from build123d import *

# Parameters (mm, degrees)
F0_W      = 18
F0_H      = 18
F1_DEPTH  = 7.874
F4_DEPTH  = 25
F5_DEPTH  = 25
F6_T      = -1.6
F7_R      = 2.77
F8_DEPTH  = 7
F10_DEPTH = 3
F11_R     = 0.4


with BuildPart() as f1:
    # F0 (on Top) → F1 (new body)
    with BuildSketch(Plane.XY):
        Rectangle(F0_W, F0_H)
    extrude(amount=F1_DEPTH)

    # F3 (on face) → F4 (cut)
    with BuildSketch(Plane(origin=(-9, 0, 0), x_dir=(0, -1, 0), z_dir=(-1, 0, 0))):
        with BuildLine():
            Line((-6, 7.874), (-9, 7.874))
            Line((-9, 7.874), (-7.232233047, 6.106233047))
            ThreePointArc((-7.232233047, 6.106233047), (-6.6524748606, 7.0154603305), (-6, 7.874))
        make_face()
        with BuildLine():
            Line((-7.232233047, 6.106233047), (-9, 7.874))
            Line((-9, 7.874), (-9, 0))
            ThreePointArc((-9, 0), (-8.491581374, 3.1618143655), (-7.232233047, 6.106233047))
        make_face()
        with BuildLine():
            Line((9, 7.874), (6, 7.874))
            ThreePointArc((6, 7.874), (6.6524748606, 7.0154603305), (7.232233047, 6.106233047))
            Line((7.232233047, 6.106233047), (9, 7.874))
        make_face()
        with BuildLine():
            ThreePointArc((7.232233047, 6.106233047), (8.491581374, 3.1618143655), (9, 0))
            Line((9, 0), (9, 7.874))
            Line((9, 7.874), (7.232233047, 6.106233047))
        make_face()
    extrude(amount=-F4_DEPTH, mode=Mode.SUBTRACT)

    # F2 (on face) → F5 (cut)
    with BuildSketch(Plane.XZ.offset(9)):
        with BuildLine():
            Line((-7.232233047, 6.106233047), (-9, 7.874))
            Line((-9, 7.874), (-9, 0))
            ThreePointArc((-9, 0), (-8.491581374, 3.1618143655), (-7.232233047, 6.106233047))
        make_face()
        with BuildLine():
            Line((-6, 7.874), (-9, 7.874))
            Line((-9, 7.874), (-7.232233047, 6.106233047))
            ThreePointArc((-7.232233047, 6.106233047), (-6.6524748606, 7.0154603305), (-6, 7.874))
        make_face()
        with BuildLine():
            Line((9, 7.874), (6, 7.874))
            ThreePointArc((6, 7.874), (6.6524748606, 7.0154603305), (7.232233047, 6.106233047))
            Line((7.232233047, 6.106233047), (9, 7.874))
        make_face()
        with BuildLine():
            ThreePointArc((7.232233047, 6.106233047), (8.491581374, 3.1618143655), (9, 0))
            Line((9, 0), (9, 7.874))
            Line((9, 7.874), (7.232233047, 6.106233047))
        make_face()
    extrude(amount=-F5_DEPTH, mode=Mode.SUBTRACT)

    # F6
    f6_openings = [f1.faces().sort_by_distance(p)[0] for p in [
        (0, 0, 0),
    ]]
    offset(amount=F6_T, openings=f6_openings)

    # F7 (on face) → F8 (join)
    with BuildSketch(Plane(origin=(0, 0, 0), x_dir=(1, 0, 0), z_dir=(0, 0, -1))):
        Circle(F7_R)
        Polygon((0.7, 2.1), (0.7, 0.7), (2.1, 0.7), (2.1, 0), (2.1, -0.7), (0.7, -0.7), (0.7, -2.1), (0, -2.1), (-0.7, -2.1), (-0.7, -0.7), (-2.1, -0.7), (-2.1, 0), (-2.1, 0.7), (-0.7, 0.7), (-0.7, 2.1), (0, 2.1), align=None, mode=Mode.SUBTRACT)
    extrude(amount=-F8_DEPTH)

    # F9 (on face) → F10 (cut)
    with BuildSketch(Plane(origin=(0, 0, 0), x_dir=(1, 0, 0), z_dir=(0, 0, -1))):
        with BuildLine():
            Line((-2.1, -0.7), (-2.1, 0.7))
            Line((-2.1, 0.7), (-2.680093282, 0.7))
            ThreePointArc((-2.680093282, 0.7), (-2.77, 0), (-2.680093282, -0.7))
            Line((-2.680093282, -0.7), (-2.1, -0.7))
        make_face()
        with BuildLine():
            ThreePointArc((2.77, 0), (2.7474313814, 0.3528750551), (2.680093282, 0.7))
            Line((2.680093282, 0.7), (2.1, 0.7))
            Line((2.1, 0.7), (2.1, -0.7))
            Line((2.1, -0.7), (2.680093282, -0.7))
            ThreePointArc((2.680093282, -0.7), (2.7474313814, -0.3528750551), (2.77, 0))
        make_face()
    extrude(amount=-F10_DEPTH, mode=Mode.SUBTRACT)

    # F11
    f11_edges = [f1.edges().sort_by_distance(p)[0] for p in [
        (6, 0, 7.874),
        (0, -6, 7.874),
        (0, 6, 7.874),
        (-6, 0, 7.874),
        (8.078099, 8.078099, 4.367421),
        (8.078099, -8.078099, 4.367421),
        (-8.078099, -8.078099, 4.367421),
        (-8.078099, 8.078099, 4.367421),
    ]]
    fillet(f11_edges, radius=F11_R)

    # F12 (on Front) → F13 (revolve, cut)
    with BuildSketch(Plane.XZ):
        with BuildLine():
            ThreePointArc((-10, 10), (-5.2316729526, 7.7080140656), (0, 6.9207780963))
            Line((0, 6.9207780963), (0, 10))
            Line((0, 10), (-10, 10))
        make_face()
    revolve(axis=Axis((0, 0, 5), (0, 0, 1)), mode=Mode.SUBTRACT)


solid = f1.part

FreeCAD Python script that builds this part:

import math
import FreeCAD as App
import Part
import Sketcher


def edges_at(feature, points):
    """Names of the edges that pass closest to the given points."""
    edges = feature.Shape.Edges
    near = lambda p: min(range(len(edges)), key=lambda i: edges[i].distToShape(Part.Vertex(*p))[0])
    return sorted({f"Edge{near(p) + 1}" for p in points})


def faces_at(feature, points):
    """Names of the faces that lie closest to the given points."""
    faces = feature.Shape.Faces
    near = lambda p: min(range(len(faces)), key=lambda i: faces[i].distToShape(Part.Vertex(*p))[0])
    return sorted({f"Face{near(p) + 1}" for p in points})

doc = App.newDocument("Part")
body = doc.addObject("PartDesign::Body", "Body")

sketch1 = doc.addObject("Sketcher::SketchObject", "Sketch")
body.addObject(sketch1)
sketch1.AttachmentSupport = (doc.XY_Plane, [""])
sketch1.MapMode = "FlatFace"
sketch1.addGeometry(Part.LineSegment(App.Vector(-9, 9, 0), App.Vector(-9, -9, 0)), False)
sketch1.addGeometry(Part.LineSegment(App.Vector(-9, -9, 0), App.Vector(9, -9, 0)), False)
sketch1.addGeometry(Part.LineSegment(App.Vector(9, -9, 0), App.Vector(9, 9, 0)), False)
sketch1.addGeometry(Part.LineSegment(App.Vector(9, 9, 0), App.Vector(-9, 9, 0)), False)
sketch1.addConstraint(Sketcher.Constraint("Coincident", 0, 2, 1, 1))
sketch1.addConstraint(Sketcher.Constraint("Coincident", 1, 2, 2, 1))
sketch1.addConstraint(Sketcher.Constraint("Coincident", 2, 2, 3, 1))
sketch1.addConstraint(Sketcher.Constraint("Coincident", 3, 2, 0, 1))
sketch1.addConstraint(Sketcher.Constraint("Vertical", 0))
sketch1.addConstraint(Sketcher.Constraint("Horizontal", 1))
sketch1.addConstraint(Sketcher.Constraint("Vertical", 2))
sketch1.addConstraint(Sketcher.Constraint("Horizontal", 3))
sketch1.addConstraint(Sketcher.Constraint("Symmetric", 0, 2, 2, 2, -1, 1))
sketch1.addConstraint(Sketcher.Constraint("Equal", 3, 0))
sketch1.addConstraint(Sketcher.Constraint("DistanceX", 1, 1, 1, 2, 18.0))
pad1 = doc.addObject("PartDesign::Pad", "Pad")
body.addObject(pad1)
pad1.Profile = sketch1
pad1.Length = 7.874

sketch2 = doc.addObject("Sketcher::SketchObject", "Sketch001")
body.addObject(sketch2)
sketch2.AttachmentSupport = (doc.YZ_Plane, [""])
sketch2.MapMode = "FlatFace"
sketch2.AttachmentOffset = App.Placement(App.Vector(0, 0, -9), App.Rotation())
sketch2.addGeometry(Part.LineSegment(App.Vector(6, 7.9, 0), App.Vector(9, 7.9, 0)), False)
sketch2.addGeometry(Part.LineSegment(App.Vector(9, 7.9, 0), App.Vector(9, 0, 0)), False)
sketch2.addGeometry(Part.ArcOfCircle(Part.Circle(App.Vector(-4.1, -0.5, 0), App.Vector(0, 0, 1), 13.1), math.radians(2), math.radians(30)), False)
sketch2.addGeometry(Part.ArcOfCircle(Part.Circle(App.Vector(-4.1, -0.5, 0), App.Vector(0, 0, 1), 13.1), math.radians(30.17), math.radians(39.59)), False)
sketch2.addGeometry(Part.LineSegment(App.Vector(-9, 7.9, 0), App.Vector(-6, 7.9, 0)), False)
sketch2.addGeometry(Part.ArcOfCircle(Part.Circle(App.Vector(4.1, -0.5, 0), App.Vector(0, 0, 1), 13.1), math.radians(140.41), math.radians(149.83)), False)
sketch2.addGeometry(Part.ArcOfCircle(Part.Circle(App.Vector(4.1, -0.5, 0), App.Vector(0, 0, 1), 13.1), math.radians(150), math.radians(178)), False)
sketch2.addGeometry(Part.LineSegment(App.Vector(-9, 0, 0), App.Vector(-9, 7.9, 0)), False)
sketch2.addConstraint(Sketcher.Constraint("Coincident", 0, 2, 1, 1))
sketch2.addConstraint(Sketcher.Constraint("Coincident", 1, 2, 2, 1))
sketch2.addConstraint(Sketcher.Constraint("Tangent", 2, 2, 3, 1))
sketch2.addConstraint(Sketcher.Constraint("Coincident", 3, 2, 0, 1))
sketch2.addConstraint(Sketcher.Constraint("Coincident", 4, 2, 5, 1))
sketch2.addConstraint(Sketcher.Constraint("Tangent", 5, 2, 6, 1))
sketch2.addConstraint(Sketcher.Constraint("Coincident", 6, 2, 7, 1))
sketch2.addConstraint(Sketcher.Constraint("Coincident", 7, 2, 4, 1))
sketch2.addConstraint(Sketcher.Constraint("Horizontal", 0))
sketch2.addConstraint(Sketcher.Constraint("Vertical", 1))
sketch2.addConstraint(Sketcher.Constraint("Horizontal", 4))
sketch2.addConstraint(Sketcher.Constraint("Vertical", 7))
sketch2.addConstraint(Sketcher.Constraint("Equal", 2, 3))
sketch2.addConstraint(Sketcher.Constraint("Equal", 3, 5))
sketch2.addConstraint(Sketcher.Constraint("Equal", 5, 6))
sketch2.addConstraint(Sketcher.Constraint("Symmetric", 1, 2, 6, 2, -1, 1))
sketch2.addConstraint(Sketcher.Constraint("Symmetric", 2, 3, 5, 3, -2))
sketch2.addConstraint(Sketcher.Constraint("Horizontal", 3, 2, 4, 2))
sketch2.addConstraint(Sketcher.Constraint("Horizontal", 2, 2, 5, 2))
sketch2.addConstraint(Sketcher.Constraint("DistanceX", 0, 1, 0, 2, 3.0))
sketch2.addConstraint(Sketcher.Constraint("DistanceX", -1, 1, 0, 2, 9.0))
sketch2.addConstraint(Sketcher.Constraint("DistanceY", 1, 2, 1, 1, 7.874))
sketch2.addConstraint(Sketcher.Constraint("Radius", 2, 13.118471))
sketch2.addConstraint(Sketcher.Constraint("DistanceX", 3, 3, 2, 2, 11.341691))
pocket1 = doc.addObject("PartDesign::Pocket", "Pocket")
body.addObject(pocket1)
pocket1.Profile = sketch2
pocket1.Length = 25
pocket1.Reversed = True

sketch3 = doc.addObject("Sketcher::SketchObject", "Sketch002")
body.addObject(sketch3)
sketch3.AttachmentSupport = (doc.XZ_Plane, [""])
sketch3.MapMode = "FlatFace"
sketch3.AttachmentOffset = App.Placement(App.Vector(0, 0, 9), App.Rotation())
sketch3.addGeometry(Part.LineSegment(App.Vector(-9, 7.9, 0), App.Vector(-9, 0, 0)), False)
sketch3.addGeometry(Part.ArcOfCircle(Part.Circle(App.Vector(4.1, -0.5, 0), App.Vector(0, 0, 1), 13.1), math.radians(150), math.radians(178)), False)
sketch3.addGeometry(Part.ArcOfCircle(Part.Circle(App.Vector(4.1, -0.5, 0), App.Vector(0, 0, 1), 13.1), math.radians(140.41), math.radians(149.83)), False)
sketch3.addGeometry(Part.LineSegment(App.Vector(-6, 7.9, 0), App.Vector(-9, 7.9, 0)), False)
sketch3.addGeometry(Part.LineSegment(App.Vector(9, 7.9, 0), App.Vector(6, 7.9, 0)), False)
sketch3.addGeometry(Part.ArcOfCircle(Part.Circle(App.Vector(-4.1, -0.5, 0), App.Vector(0, 0, 1), 13.1), math.radians(30.17), math.radians(39.59)), False)
sketch3.addGeometry(Part.ArcOfCircle(Part.Circle(App.Vector(-4.1, -0.5, 0), App.Vector(0, 0, 1), 13.1), math.radians(2), math.radians(30)), False)
sketch3.addGeometry(Part.LineSegment(App.Vector(9, 0, 0), App.Vector(9, 7.9, 0)), False)
sketch3.addConstraint(Sketcher.Constraint("Coincident", 0, 2, 1, 2))
sketch3.addConstraint(Sketcher.Constraint("Tangent", 1, 1, 2, 2))
sketch3.addConstraint(Sketcher.Constraint("Coincident", 2, 1, 3, 1))
sketch3.addConstraint(Sketcher.Constraint("Coincident", 3, 2, 0, 1))
sketch3.addConstraint(Sketcher.Constraint("Coincident", 4, 2, 5, 2))
sketch3.addConstraint(Sketcher.Constraint("Tangent", 5, 1, 6, 2))
sketch3.addConstraint(Sketcher.Constraint("Coincident", 6, 1, 7, 1))
sketch3.addConstraint(Sketcher.Constraint("Coincident", 7, 2, 4, 1))
sketch3.addConstraint(Sketcher.Constraint("Vertical", 0))
sketch3.addConstraint(Sketcher.Constraint("Horizontal", 3))
sketch3.addConstraint(Sketcher.Constraint("Horizontal", 4))
sketch3.addConstraint(Sketcher.Constraint("Vertical", 7))
sketch3.addConstraint(Sketcher.Constraint("Equal", 1, 2))
sketch3.addConstraint(Sketcher.Constraint("Equal", 2, 5))
sketch3.addConstraint(Sketcher.Constraint("Equal", 5, 6))
sketch3.addConstraint(Sketcher.Constraint("Symmetric", 0, 2, 6, 1, -1, 1))
sketch3.addConstraint(Sketcher.Constraint("Symmetric", 1, 3, 5, 3, -2))
sketch3.addConstraint(Sketcher.Constraint("Horizontal", 3, 2, 4, 2))
sketch3.addConstraint(Sketcher.Constraint("Horizontal", 1, 1, 5, 1))
sketch3.addConstraint(Sketcher.Constraint("DistanceX", 3, 2, 3, 1, 3.0))
sketch3.addConstraint(Sketcher.Constraint("DistanceX", 0, 2, -1, 1, 9.0))
sketch3.addConstraint(Sketcher.Constraint("DistanceY", 0, 2, 0, 1, 7.874))
sketch3.addConstraint(Sketcher.Constraint("Radius", 1, 13.118471))
sketch3.addConstraint(Sketcher.Constraint("DistanceX", 1, 1, 2, 3, 11.341691))
pocket2 = doc.addObject("PartDesign::Pocket", "Pocket001")
body.addObject(pocket2)
pocket2.Profile = sketch3
pocket2.Length = 25
doc.recompute()

thickness = doc.addObject("PartDesign::Thickness", "Thickness")
body.addObject(thickness)
thickness.Base = (pocket2, faces_at(pocket2, [(0, 0, 0)]))
thickness.Value = 1.6
thickness.Reversed = True
thickness.Join = "Arc"

sketch4 = doc.addObject("Sketcher::SketchObject", "Sketch003")
body.addObject(sketch4)
sketch4.AttachmentSupport = (doc.XY_Plane, [""])
sketch4.MapMode = "FlatFace"
sketch4.addGeometry(Part.Circle(App.Vector(0, 0, 0), App.Vector(0, 0, 1), 2.8), False)
sketch4.addGeometry(Part.LineSegment(App.Vector(-0.7, -2.1, 0), App.Vector(0.7, -2.1, 0)), False)
sketch4.addGeometry(Part.LineSegment(App.Vector(0.7, -2.1, 0), App.Vector(0.7, -0.7, 0)), False)
sketch4.addGeometry(Part.LineSegment(App.Vector(0.7, -0.7, 0), App.Vector(2.1, -0.7, 0)), False)
sketch4.addGeometry(Part.LineSegment(App.Vector(2.1, -0.7, 0), App.Vector(2.1, 0.7, 0)), False)
sketch4.addGeometry(Part.LineSegment(App.Vector(2.1, 0.7, 0), App.Vector(0.7, 0.7, 0)), False)
sketch4.addGeometry(Part.LineSegment(App.Vector(0.7, 0.7, 0), App.Vector(0.7, 2.1, 0)), False)
sketch4.addGeometry(Part.LineSegment(App.Vector(0.7, 2.1, 0), App.Vector(-0.7, 2.1, 0)), False)
sketch4.addGeometry(Part.LineSegment(App.Vector(-0.7, 2.1, 0), App.Vector(-0.7, 0.7, 0)), False)
sketch4.addGeometry(Part.LineSegment(App.Vector(-0.7, 0.7, 0), App.Vector(-2.1, 0.7, 0)), False)
sketch4.addGeometry(Part.LineSegment(App.Vector(-2.1, 0.7, 0), App.Vector(-2.1, -0.7, 0)), False)
sketch4.addGeometry(Part.LineSegment(App.Vector(-2.1, -0.7, 0), App.Vector(-0.7, -0.7, 0)), False)
sketch4.addGeometry(Part.LineSegment(App.Vector(-0.7, -0.7, 0), App.Vector(-0.7, -2.1, 0)), False)
sketch4.addConstraint(Sketcher.Constraint("Coincident", 1, 2, 2, 1))
sketch4.addConstraint(Sketcher.Constraint("Coincident", 2, 2, 3, 1))
sketch4.addConstraint(Sketcher.Constraint("Coincident", 3, 2, 4, 1))
sketch4.addConstraint(Sketcher.Constraint("Coincident", 4, 2, 5, 1))
sketch4.addConstraint(Sketcher.Constraint("Coincident", 5, 2, 6, 1))
sketch4.addConstraint(Sketcher.Constraint("Coincident", 6, 2, 7, 1))
sketch4.addConstraint(Sketcher.Constraint("Coincident", 7, 2, 8, 1))
sketch4.addConstraint(Sketcher.Constraint("Coincident", 8, 2, 9, 1))
sketch4.addConstraint(Sketcher.Constraint("Coincident", 9, 2, 10, 1))
sketch4.addConstraint(Sketcher.Constraint("Coincident", 10, 2, 11, 1))
sketch4.addConstraint(Sketcher.Constraint("Coincident", 11, 2, 12, 1))
sketch4.addConstraint(Sketcher.Constraint("Coincident", 12, 2, 1, 1))
sketch4.addConstraint(Sketcher.Constraint("Horizontal", 1))
sketch4.addConstraint(Sketcher.Constraint("Vertical", 2))
sketch4.addConstraint(Sketcher.Constraint("Horizontal", 3))
sketch4.addConstraint(Sketcher.Constraint("Vertical", 4))
sketch4.addConstraint(Sketcher.Constraint("Horizontal", 5))
sketch4.addConstraint(Sketcher.Constraint("Vertical", 6))
sketch4.addConstraint(Sketcher.Constraint("Horizontal", 7))
sketch4.addConstraint(Sketcher.Constraint("Vertical", 8))
sketch4.addConstraint(Sketcher.Constraint("Horizontal", 9))
sketch4.addConstraint(Sketcher.Constraint("Vertical", 10))
sketch4.addConstraint(Sketcher.Constraint("Horizontal", 11))
sketch4.addConstraint(Sketcher.Constraint("Vertical", 12))
sketch4.addConstraint(Sketcher.Constraint("Coincident", 0, 3, -1, 1))
sketch4.addConstraint(Sketcher.Constraint("Symmetric", 1, 2, 7, 2, -1, 1))
sketch4.addConstraint(Sketcher.Constraint("Symmetric", 3, 2, 9, 2, -1, 1))
sketch4.addConstraint(Sketcher.Constraint("Symmetric", 5, 2, 11, 2, -1, 1))
sketch4.addConstraint(Sketcher.Constraint("Symmetric", 5, 2, 8, 2, -2))
sketch4.addConstraint(Sketcher.Constraint("Equal", 1, 3))
sketch4.addConstraint(Sketcher.Constraint("Equal", 11, 2))
sketch4.addConstraint(Sketcher.Constraint("Equal", 2, 4))
sketch4.addConstraint(Sketcher.Constraint("Diameter", 0, 5.54))
sketch4.addConstraint(Sketcher.Constraint("DistanceX", 1, 1, 1, 2, 1.4))
pad2 = doc.addObject("PartDesign::Pad", "Pad001")
body.addObject(pad2)
pad2.Profile = sketch4
pad2.Length = 7

sketch5 = doc.addObject("Sketcher::SketchObject", "Sketch004")
body.addObject(sketch5)
sketch5.AttachmentSupport = (doc.XY_Plane, [""])
sketch5.MapMode = "FlatFace"
sketch5.addGeometry(Part.LineSegment(App.Vector(-2.1, 0.7, 0), App.Vector(-2.1, -0.7, 0)), False)
sketch5.addGeometry(Part.LineSegment(App.Vector(-2.1, -0.7, 0), App.Vector(-2.7, -0.7, 0)), False)
sketch5.addGeometry(Part.ArcOfCircle(Part.Circle(App.Vector(0, 0, 0), App.Vector(0, 0, 1), 2.8), math.radians(165), math.radians(195)), False)
sketch5.addGeometry(Part.LineSegment(App.Vector(-2.7, 0.7, 0), App.Vector(-2.1, 0.7, 0)), False)
sketch5.addGeometry(Part.ArcOfCircle(Part.Circle(App.Vector(0, 0, 0), App.Vector(0, 0, 1), 2.8), math.radians(-14.64), math.radians(0)), False)
sketch5.addGeometry(Part.LineSegment(App.Vector(2.7, -0.7, 0), App.Vector(2.1, -0.7, 0)), False)
sketch5.addGeometry(Part.LineSegment(App.Vector(2.1, -0.7, 0), App.Vector(2.1, 0.7, 0)), False)
sketch5.addGeometry(Part.LineSegment(App.Vector(2.1, 0.7, 0), App.Vector(2.7, 0.7, 0)), False)
sketch5.addGeometry(Part.ArcOfCircle(Part.Circle(App.Vector(0, 0, 0), App.Vector(0, 0, 1), 2.8), math.radians(0), math.radians(14.64)), False)
sketch5.addConstraint(Sketcher.Constraint("Coincident", 0, 2, 1, 1))
sketch5.addConstraint(Sketcher.Constraint("Coincident", 1, 2, 2, 2))
sketch5.addConstraint(Sketcher.Constraint("Coincident", 2, 1, 3, 1))
sketch5.addConstraint(Sketcher.Constraint("Coincident", 3, 2, 0, 1))
sketch5.addConstraint(Sketcher.Constraint("Coincident", 4, 1, 5, 1))
sketch5.addConstraint(Sketcher.Constraint("Coincident", 5, 2, 6, 1))
sketch5.addConstraint(Sketcher.Constraint("Coincident", 6, 2, 7, 1))
sketch5.addConstraint(Sketcher.Constraint("Coincident", 7, 2, 8, 2))
sketch5.addConstraint(Sketcher.Constraint("Tangent", 8, 1, 4, 2))
sketch5.addConstraint(Sketcher.Constraint("Vertical", 0))
sketch5.addConstraint(Sketcher.Constraint("Horizontal", 1))
sketch5.addConstraint(Sketcher.Constraint("Horizontal", 3))
sketch5.addConstraint(Sketcher.Constraint("Horizontal", 5))
sketch5.addConstraint(Sketcher.Constraint("Vertical", 6))
sketch5.addConstraint(Sketcher.Constraint("Horizontal", 7))
sketch5.addConstraint(Sketcher.Constraint("Coincident", 2, 3, -1, 1))
sketch5.addConstraint(Sketcher.Constraint("Coincident", 4, 3, -1, 1))
sketch5.addConstraint(Sketcher.Constraint("Equal", 2, 4))
sketch5.addConstraint(Sketcher.Constraint("Equal", 4, 8))
sketch5.addConstraint(Sketcher.Constraint("Symmetric", 3, 2, 5, 2, -1, 1))
sketch5.addConstraint(Sketcher.Constraint("PointOnObject", 8, 1, -1))
sketch5.addConstraint(Sketcher.Constraint("Horizontal", 1, 2, 4, 1))
sketch5.addConstraint(Sketcher.Constraint("Horizontal", 3, 2, 6, 2))
sketch5.addConstraint(Sketcher.Constraint("Radius", 2, 2.77))
sketch5.addConstraint(Sketcher.Constraint("DistanceY", 0, 2, 0, 1, 1.4))
sketch5.addConstraint(Sketcher.Constraint("DistanceX", 0, 2, -1, 1, 2.1))
pocket3 = doc.addObject("PartDesign::Pocket", "Pocket002")
body.addObject(pocket3)
pocket3.Profile = sketch5
pocket3.Length = 3
pocket3.Reversed = True
doc.recompute()

fillet = doc.addObject("PartDesign::Fillet", "Fillet")
body.addObject(fillet)
fillet.Base = (pocket3, edges_at(pocket3, [
    (6, 0, 7.874),
    (0, -6, 7.874),
    (0, 6, 7.874),
    (-6, 0, 7.874),
    (8.465, 8.465, 3.252),
    (8.465, -8.465, 3.252),
    (-8.465, -8.465, 3.252),
    (-8.465, 8.465, 3.252),
]))
fillet.Radius = 0.4

sketch6 = doc.addObject("Sketcher::SketchObject", "Sketch005")
body.addObject(sketch6)
sketch6.AttachmentSupport = (doc.XZ_Plane, [""])
sketch6.MapMode = "FlatFace"
sketch6.addGeometry(Part.ArcOfCircle(Part.Circle(App.Vector(0, 24.7, 0), App.Vector(0, 0, 1), 17.8), math.radians(-124), math.radians(-90)), False)
sketch6.addGeometry(Part.LineSegment(App.Vector(0, 6.9, 0), App.Vector(0, 10, 0)), False)
sketch6.addGeometry(Part.LineSegment(App.Vector(0, 10, 0), App.Vector(-10, 10, 0)), False)
sketch6.addConstraint(Sketcher.Constraint("Coincident", 0, 2, 1, 1))
sketch6.addConstraint(Sketcher.Constraint("Coincident", 1, 2, 2, 1))
sketch6.addConstraint(Sketcher.Constraint("Coincident", 2, 2, 0, 1))
sketch6.addConstraint(Sketcher.Constraint("Vertical", 1))
sketch6.addConstraint(Sketcher.Constraint("Horizontal", 2))
sketch6.addConstraint(Sketcher.Constraint("PointOnObject", 0, 3, -2))
sketch6.addConstraint(Sketcher.Constraint("PointOnObject", 0, 2, -2))
sketch6.addConstraint(Sketcher.Constraint("DistanceX", 2, 2, 2, 1, 10.0))
sketch6.addConstraint(Sketcher.Constraint("DistanceY", -1, 1, 1, 2, 10.0))
sketch6.addConstraint(Sketcher.Constraint("Radius", 0, 17.777479))
groove = doc.addObject("PartDesign::Groove", "Groove")
body.addObject(groove)
groove.Profile = sketch6
groove.ReferenceAxis = (sketch6, ["V_Axis"])
groove.Angle = 360

doc.recompute()
